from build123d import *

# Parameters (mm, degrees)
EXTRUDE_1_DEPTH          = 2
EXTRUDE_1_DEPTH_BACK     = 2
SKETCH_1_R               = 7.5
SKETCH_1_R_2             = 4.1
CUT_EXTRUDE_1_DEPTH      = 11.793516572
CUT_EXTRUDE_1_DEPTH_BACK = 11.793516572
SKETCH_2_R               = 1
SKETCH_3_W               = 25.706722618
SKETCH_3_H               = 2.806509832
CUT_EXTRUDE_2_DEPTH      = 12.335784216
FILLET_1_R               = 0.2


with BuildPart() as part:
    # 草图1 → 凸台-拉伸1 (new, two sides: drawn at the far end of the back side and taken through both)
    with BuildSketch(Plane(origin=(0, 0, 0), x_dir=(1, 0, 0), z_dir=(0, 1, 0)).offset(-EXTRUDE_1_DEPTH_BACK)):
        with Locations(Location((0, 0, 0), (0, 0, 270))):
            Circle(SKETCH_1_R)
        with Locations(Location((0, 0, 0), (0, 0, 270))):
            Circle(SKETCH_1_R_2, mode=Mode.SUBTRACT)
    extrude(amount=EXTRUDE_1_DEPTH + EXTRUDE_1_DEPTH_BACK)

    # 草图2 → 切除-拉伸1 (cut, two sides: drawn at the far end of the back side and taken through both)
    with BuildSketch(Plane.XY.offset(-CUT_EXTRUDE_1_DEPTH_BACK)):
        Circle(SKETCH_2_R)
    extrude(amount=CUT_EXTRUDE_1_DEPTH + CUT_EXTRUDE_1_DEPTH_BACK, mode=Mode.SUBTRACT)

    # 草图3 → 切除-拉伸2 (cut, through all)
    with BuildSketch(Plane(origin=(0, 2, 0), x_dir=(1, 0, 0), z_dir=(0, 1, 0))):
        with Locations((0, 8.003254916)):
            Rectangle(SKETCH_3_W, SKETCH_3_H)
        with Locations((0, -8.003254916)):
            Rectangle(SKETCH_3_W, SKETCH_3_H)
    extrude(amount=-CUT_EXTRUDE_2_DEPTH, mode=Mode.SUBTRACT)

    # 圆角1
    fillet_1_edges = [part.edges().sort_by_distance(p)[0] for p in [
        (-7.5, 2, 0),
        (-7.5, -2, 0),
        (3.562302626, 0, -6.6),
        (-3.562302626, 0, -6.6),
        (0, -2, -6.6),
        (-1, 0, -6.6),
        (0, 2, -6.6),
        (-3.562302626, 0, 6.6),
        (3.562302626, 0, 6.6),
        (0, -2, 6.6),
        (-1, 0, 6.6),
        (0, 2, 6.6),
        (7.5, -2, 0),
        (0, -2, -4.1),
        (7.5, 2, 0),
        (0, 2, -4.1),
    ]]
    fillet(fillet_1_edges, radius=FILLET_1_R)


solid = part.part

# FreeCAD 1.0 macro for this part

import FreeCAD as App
import Part
import Sketcher

V = App.Vector
Q = App.Units.Quantity


def edges_at(feature, points):
    """Names of the edges that pass closest to the given points."""
    edges = feature.Shape.Edges
    near = lambda p: min(range(len(edges)), key=lambda i: edges[i].distToShape(Part.Vertex(*p))[0])
    return sorted({f"Edge{near(p) + 1}" for p in points})


def add_polygon(sketch, points):
    """Adds a closed chain of lines whose ends are joined by coincident constraints."""
    first, n = sketch.GeometryCount, len(points)
    for a, b in zip(points, points[1:] + points[:1]):
        sketch.addGeometry(Part.LineSegment(App.Vector(*a, 0), App.Vector(*b, 0)), False)
    for i in range(n):
        sketch.addConstraint(Sketcher.Constraint("Coincident", first + i, 2, first + (i + 1) % n, 1))

doc = App.newDocument("Part")
body = doc.addObject("PartDesign::Body", "Body")

sketch1 = doc.addObject("Sketcher::SketchObject", "Sketch")
body.addObject(sketch1)
sketch1.AttachmentSupport = (doc.XZ_Plane, [""])
sketch1.MapMode = "FlatFace"
sketch1.addGeometry([
    Part.Circle(V(0, 0, 0), V(0, 0, 1), 7.5),
    Part.Circle(V(0, 0, 0), V(0, 0, 1), 4.1),
], False)
sketch1.addConstraint([
    Sketcher.Constraint("Coincident", 0, 3, -1, 1),
    Sketcher.Constraint("Coincident", 1, 3, -1, 1),
    Sketcher.Constraint("Diameter", 0, Q("15 mm")),
    Sketcher.Constraint("Diameter", 1, Q("8.2 mm")),
])
pad1 = doc.addObject("PartDesign::Pad", "Pad")
body.addObject(pad1)
pad1.Profile = sketch1
pad1.Type = "TwoLengths"
pad1.Length = 2
pad1.Length2 = 2
pad1.Reversed = True

sketch2 = doc.addObject("Sketcher::SketchObject", "Sketch001")
body.addObject(sketch2)
sketch2.AttachmentSupport = (doc.XY_Plane, [""])
sketch2.MapMode = "FlatFace"
sketch2.addGeometry(Part.Circle(V(0, 0, 0), V(0, 0, 1), 1), False)
sketch2.addConstraint([
    Sketcher.Constraint("Coincident", 0, 3, -1, 1),
    Sketcher.Constraint("Diameter", 0, Q("2 mm")),
])
pocket1 = doc.addObject("PartDesign::Pocket", "Pocket")
body.addObject(pocket1)
pocket1.Profile = sketch2
pocket1.Type = "ThroughAll"
pocket1.Midplane = True

sketch3 = doc.addObject("Sketcher::SketchObject", "Sketch002")
body.addObject(sketch3)
sketch3.AttachmentSupport = (doc.XZ_Plane, [""])
sketch3.MapMode = "FlatFace"
sketch3.AttachmentOffset = App.Placement(V(0, 0, -2), App.Rotation())
add_polygon(sketch3, [(-12.9, -9.4), (-12.9, -6.6), (12.9, -6.6), (12.9, -9.4)])
add_polygon(sketch3, [(-12.9, 6.6), (-12.9, 9.4), (12.9, 9.4), (12.9, 6.6)])
sketch3.addConstraint([
    Sketcher.Constraint("Vertical", 0),
    Sketcher.Constraint("Horizontal", 1),
    Sketcher.Constraint("Vertical", 2),
    Sketcher.Constraint("Horizontal", 3),
    Sketcher.Constraint("Vertical", 4),
    Sketcher.Constraint("Horizontal", 5),
    Sketcher.Constraint("Vertical", 6),
    Sketcher.Constraint("Horizontal", 7),
    Sketcher.Constraint("Symmetric", 2, 2, 4, 2, -1, 1),
    Sketcher.Constraint("Symmetric", 0, 2, 6, 2, -1, 1),
    Sketcher.Constraint("Vertical", 3, 2, 4, 2),
    Sketcher.Constraint("DistanceY", 0, 2, -1, 1, Q("6.6 mm")),
    Sketcher.Constraint("DistanceY", 0, 1, 0, 2, Q("2.80651 mm")),
    Sketcher.Constraint("DistanceX", 1, 1, 1, 2, Q("25.706723 mm")),
])
pocket2 = doc.addObject("PartDesign::Pocket", "Pocket001")
body.addObject(pocket2)
pocket2.Profile = sketch3
pocket2.Type = "ThroughAll"
pocket2.Reversed = True
doc.recompute()

fillet = doc.addObject("PartDesign::Fillet", "Fillet")
body.addObject(fillet)
fillet.Base = (pocket2, edges_at(pocket2, [
    (-7.5, 2, 0),
    (-7.5, -2, 0),
    (3.562, 0, -6.6),
    (-3.562, 0, -6.6),
    (0, -2, -6.6),
    (-1, 0, -6.6),
    (0, 2, -6.6),
    (-3.562, 0, 6.6),
    (3.562, 0, 6.6),
    (0, -2, 6.6),
    (-1, 0, 6.6),
    (0, 2, 6.6),
    (7.5, -2, 0),
    (0, -2, -4.1),
    (7.5, 2, 0),
    (0, 2, -4.1),
]))
fillet.Radius = 0.2

doc.recompute()
